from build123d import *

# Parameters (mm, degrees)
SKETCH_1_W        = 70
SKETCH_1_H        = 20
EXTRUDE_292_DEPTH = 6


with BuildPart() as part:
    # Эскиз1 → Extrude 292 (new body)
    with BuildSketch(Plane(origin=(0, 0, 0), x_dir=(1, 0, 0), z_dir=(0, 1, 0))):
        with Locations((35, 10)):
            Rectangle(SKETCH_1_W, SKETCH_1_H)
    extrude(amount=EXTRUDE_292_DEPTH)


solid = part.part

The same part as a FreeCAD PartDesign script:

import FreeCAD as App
import Part
import Sketcher

V = App.Vector
Q = App.Units.Quantity


def add_polygon(sketch, points):
    """Adds a closed chain of lines whose ends are joined by coincident constraints."""
    first, n = sketch.GeometryCount, len(points)
    for a, b in zip(points, points[1:] + points[:1]):
        sketch.addGeometry(Part.LineSegment(App.Vector(*a, 0), App.Vector(*b, 0)), False)
    for i in range(n):
        sketch.addConstraint(Sketcher.Constraint("Coincident", first + i, 2, first + (i + 1) % n, 1))

doc = App.newDocument("Part")
body = doc.addObject("PartDesign::Body", "Body")

sketch1 = body.newObject("Sketcher::SketchObject", "Sketch")
sketch1.AttachmentSupport = (doc.getObject("XZ_Plane"), [""])
sketch1.MapMode = "FlatFace"
add_polygon(sketch1, [(0, -20), (0, 0), (70, 0), (70, -20)])
sketch1.addConstraint(Sketcher.Constraint("Vertical", 0))
sketch1.addConstraint(Sketcher.Constraint("Horizontal", 1))
sketch1.addConstraint(Sketcher.Constraint("Vertical", 2))
sketch1.addConstraint(Sketcher.Constraint("Horizontal", 3))
sketch1.addConstraint(Sketcher.Constraint("Coincident", 0, 2, -1, 1))
sketch1.addConstraint(Sketcher.Constraint("DistanceX", 1, 1, 1, 2, Q("70 mm")))
sketch1.addConstraint(Sketcher.Constraint("DistanceY", 0, 1, 0, 2, Q("20 mm")))
pad1 = body.newObject("PartDesign::Pad", "Pad")
pad1.Profile = sketch1
pad1.Length = 6
pad1.Reversed = True

doc.recompute()
